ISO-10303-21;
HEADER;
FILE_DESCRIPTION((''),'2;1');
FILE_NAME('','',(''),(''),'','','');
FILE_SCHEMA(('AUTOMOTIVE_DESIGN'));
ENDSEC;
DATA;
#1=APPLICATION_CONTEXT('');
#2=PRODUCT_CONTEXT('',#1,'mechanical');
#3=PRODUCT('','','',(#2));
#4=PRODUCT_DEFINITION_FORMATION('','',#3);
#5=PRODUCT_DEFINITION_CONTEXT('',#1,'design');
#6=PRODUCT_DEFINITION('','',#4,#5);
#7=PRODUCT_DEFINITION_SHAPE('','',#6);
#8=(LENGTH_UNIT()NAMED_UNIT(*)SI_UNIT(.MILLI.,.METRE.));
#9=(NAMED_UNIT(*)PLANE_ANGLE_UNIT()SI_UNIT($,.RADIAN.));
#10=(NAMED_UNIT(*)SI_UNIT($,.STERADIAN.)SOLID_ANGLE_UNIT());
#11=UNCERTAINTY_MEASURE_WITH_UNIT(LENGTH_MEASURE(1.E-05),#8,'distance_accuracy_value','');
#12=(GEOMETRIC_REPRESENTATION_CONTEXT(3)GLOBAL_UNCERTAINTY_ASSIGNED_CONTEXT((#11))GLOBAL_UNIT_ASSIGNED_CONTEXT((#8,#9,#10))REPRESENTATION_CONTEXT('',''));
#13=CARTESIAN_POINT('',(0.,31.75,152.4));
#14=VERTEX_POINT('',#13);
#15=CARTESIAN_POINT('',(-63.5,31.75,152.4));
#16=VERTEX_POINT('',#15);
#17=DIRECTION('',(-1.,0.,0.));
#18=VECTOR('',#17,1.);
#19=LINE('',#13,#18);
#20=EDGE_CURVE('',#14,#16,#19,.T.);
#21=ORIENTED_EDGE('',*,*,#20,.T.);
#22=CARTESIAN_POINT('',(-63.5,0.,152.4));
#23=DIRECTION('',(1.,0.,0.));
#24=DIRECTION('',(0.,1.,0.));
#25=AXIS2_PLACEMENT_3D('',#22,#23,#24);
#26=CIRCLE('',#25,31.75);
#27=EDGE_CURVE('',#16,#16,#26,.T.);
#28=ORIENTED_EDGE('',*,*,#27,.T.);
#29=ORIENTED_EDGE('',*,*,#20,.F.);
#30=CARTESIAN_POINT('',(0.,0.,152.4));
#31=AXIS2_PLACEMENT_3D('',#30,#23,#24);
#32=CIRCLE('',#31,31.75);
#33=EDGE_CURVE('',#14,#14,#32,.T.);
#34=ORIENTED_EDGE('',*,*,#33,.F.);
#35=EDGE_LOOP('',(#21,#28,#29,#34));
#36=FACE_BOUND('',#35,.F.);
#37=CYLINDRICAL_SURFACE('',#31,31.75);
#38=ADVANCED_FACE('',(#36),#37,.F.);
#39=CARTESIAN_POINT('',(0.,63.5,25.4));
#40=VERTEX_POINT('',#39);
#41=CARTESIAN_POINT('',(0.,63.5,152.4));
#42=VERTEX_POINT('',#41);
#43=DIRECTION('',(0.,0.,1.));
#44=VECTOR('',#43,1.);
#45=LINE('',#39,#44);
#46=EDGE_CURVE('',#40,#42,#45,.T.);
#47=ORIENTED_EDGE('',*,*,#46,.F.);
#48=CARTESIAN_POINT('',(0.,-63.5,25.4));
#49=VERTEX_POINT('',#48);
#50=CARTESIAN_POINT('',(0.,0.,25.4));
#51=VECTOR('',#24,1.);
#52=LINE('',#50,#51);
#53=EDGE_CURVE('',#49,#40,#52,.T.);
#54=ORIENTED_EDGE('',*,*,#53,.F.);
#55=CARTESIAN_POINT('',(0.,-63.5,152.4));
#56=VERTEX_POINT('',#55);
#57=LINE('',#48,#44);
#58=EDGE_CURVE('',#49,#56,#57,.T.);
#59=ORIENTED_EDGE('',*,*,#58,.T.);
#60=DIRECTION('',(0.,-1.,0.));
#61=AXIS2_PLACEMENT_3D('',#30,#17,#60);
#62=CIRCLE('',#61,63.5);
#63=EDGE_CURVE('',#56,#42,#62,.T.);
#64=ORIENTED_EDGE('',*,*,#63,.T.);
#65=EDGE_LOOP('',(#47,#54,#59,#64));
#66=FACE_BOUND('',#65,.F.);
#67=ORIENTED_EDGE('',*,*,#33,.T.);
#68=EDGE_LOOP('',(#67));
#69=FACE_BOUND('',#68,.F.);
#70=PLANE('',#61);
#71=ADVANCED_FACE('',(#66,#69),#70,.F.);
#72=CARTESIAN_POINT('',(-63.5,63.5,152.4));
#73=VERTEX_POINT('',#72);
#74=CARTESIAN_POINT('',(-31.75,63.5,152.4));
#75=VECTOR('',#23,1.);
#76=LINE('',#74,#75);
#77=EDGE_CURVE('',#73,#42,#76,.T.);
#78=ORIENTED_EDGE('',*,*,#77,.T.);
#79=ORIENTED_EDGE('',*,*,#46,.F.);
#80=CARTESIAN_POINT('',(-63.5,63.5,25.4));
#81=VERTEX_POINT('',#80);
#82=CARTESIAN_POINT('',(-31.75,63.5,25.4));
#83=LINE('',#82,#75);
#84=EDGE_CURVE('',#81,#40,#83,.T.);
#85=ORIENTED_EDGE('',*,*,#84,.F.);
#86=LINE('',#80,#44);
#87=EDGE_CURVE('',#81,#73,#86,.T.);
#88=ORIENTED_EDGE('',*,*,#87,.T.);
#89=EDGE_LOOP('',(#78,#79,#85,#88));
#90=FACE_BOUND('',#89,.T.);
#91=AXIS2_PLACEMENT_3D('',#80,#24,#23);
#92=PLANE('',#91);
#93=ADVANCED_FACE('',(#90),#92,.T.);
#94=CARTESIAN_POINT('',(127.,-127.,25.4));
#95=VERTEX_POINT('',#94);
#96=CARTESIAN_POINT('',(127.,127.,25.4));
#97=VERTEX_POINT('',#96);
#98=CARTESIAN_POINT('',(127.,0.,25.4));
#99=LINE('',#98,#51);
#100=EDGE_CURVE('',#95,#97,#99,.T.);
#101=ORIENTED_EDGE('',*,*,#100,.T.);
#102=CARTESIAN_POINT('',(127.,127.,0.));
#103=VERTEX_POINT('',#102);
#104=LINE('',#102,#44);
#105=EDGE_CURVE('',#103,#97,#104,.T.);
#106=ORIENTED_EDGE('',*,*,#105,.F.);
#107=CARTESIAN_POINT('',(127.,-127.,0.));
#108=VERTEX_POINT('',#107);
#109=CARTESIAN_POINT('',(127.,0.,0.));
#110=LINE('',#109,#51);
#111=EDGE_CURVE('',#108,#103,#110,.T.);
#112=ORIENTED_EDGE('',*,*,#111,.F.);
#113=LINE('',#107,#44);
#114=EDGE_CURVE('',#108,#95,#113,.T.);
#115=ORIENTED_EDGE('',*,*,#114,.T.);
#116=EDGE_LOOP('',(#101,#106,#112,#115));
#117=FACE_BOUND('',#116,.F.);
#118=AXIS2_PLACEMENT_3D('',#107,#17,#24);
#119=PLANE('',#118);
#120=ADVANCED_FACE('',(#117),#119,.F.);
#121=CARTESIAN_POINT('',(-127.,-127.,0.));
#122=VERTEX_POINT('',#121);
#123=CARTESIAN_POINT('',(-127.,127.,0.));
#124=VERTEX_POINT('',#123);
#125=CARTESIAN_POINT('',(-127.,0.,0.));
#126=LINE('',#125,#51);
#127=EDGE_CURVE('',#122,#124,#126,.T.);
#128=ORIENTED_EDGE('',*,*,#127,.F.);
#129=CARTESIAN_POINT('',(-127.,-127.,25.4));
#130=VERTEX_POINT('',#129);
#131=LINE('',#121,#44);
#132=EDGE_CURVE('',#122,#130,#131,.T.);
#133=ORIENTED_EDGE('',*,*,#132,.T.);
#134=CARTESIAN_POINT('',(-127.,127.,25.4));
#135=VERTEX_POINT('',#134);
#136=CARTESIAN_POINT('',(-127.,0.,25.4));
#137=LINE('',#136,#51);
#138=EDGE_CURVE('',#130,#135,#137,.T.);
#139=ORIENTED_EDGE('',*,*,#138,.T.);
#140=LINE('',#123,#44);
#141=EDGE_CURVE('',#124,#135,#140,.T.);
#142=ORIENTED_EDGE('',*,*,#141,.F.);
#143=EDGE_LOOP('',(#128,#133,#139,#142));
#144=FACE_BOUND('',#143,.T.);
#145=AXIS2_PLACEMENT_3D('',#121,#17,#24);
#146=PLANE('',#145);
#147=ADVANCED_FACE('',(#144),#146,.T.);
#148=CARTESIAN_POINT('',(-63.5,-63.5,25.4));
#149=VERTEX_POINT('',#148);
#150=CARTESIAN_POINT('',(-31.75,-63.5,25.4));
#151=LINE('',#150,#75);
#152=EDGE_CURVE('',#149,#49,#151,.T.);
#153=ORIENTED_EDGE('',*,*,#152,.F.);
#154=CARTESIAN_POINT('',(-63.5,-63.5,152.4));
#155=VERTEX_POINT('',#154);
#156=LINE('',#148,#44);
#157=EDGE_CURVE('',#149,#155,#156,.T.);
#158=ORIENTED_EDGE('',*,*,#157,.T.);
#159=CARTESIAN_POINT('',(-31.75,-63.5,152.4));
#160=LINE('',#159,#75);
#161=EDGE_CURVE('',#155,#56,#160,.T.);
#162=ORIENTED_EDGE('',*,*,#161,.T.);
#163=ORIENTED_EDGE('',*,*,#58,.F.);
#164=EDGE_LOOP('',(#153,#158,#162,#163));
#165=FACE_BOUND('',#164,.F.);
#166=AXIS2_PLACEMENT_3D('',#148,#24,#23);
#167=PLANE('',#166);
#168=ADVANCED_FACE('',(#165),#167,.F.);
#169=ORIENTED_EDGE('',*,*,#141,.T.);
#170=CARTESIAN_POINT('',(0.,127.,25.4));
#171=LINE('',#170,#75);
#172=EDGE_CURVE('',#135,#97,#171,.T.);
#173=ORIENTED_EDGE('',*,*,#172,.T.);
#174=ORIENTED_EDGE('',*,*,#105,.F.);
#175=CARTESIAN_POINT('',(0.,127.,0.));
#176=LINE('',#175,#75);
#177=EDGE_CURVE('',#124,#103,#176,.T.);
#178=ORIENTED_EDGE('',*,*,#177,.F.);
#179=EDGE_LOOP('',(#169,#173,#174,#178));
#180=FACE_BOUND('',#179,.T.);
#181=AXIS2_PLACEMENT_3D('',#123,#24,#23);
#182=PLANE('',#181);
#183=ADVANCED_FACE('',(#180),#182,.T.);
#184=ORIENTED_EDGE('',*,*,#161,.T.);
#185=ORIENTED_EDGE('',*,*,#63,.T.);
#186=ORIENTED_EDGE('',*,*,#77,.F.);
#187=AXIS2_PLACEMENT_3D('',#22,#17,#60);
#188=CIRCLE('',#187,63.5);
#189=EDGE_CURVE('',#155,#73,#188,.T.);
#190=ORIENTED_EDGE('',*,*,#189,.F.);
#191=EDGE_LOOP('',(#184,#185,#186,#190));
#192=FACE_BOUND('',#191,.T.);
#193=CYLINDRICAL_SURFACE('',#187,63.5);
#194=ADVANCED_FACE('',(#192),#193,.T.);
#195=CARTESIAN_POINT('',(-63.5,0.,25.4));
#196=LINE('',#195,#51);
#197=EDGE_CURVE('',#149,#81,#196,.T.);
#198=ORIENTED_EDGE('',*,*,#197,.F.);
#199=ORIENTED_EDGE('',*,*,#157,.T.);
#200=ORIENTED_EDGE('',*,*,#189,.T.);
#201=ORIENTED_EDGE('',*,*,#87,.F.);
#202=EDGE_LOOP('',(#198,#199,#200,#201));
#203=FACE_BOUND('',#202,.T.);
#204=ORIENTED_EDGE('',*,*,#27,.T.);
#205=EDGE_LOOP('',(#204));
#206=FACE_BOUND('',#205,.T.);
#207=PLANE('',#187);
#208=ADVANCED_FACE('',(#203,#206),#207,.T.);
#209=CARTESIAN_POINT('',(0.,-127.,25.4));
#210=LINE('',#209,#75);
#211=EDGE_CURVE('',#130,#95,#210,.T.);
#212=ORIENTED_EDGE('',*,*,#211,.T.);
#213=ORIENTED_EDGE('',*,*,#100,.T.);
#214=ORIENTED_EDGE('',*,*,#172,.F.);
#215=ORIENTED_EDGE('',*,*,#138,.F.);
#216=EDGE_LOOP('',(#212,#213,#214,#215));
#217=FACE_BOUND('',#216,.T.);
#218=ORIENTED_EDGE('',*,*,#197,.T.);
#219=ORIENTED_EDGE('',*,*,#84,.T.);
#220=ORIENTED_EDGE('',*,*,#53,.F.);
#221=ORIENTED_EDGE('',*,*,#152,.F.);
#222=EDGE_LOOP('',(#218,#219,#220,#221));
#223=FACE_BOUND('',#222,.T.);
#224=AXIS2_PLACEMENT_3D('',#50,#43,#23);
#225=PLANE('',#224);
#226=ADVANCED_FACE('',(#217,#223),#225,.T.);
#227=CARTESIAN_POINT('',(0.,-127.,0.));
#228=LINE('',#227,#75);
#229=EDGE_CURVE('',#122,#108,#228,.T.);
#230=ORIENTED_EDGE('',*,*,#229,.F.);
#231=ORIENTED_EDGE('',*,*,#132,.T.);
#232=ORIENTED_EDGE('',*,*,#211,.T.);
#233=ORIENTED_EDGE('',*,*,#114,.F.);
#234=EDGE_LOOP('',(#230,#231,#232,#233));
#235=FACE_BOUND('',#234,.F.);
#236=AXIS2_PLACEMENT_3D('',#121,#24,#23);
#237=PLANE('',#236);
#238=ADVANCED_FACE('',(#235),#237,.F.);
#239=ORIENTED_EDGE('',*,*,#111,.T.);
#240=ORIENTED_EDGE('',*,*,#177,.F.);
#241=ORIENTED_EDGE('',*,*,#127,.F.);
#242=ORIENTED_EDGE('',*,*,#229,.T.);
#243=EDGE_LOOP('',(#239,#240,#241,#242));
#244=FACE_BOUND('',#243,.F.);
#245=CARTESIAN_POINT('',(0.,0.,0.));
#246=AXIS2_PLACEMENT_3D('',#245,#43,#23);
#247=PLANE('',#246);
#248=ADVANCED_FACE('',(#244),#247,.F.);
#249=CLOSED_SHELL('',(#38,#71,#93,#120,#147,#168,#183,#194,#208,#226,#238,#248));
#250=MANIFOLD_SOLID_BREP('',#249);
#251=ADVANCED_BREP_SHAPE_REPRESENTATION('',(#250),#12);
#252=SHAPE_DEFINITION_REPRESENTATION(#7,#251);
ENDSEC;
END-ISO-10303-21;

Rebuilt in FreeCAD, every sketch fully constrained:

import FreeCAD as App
import Part
import Sketcher
from FreeCAD import Vector
Q = App.Units.Quantity

doc = App.newDocument("Part")
body = doc.addObject("PartDesign::Body", "Body")

# Sketch on XY plane
sketch1 = doc.addObject("Sketcher::SketchObject", "Sketch")
body.addObject(sketch1)
sketch1.AttachmentSupport = (doc.XY_Plane, [""])
sketch1.MapMode = "FlatFace"
sketch1.addGeometry(Part.LineSegment(Vector(-127, 127, 0), Vector(-127, -127, 0)), False)
sketch1.addGeometry(Part.LineSegment(Vector(-127, -127, 0), Vector(127, -127, 0)), False)
sketch1.addGeometry(Part.LineSegment(Vector(127, -127, 0), Vector(127, 127, 0)), False)
sketch1.addGeometry(Part.LineSegment(Vector(127, 127, 0), Vector(-127, 127, 0)), False)
sketch1.addConstraint(Sketcher.Constraint("Coincident", 0, 2, 1, 1))
sketch1.addConstraint(Sketcher.Constraint("Coincident", 1, 2, 2, 1))
sketch1.addConstraint(Sketcher.Constraint("Coincident", 2, 2, 3, 1))
sketch1.addConstraint(Sketcher.Constraint("Coincident", 3, 2, 0, 1))
sketch1.addConstraint(Sketcher.Constraint("Vertical", 0))
sketch1.addConstraint(Sketcher.Constraint("Horizontal", 1))
sketch1.addConstraint(Sketcher.Constraint("Vertical", 2))
sketch1.addConstraint(Sketcher.Constraint("Horizontal", 3))
sketch1.addConstraint(Sketcher.Constraint("Symmetric", 0, 2, 2, 2, -1, 1))
sketch1.addConstraint(Sketcher.Constraint("Equal", 3, 0))
sketch1.addConstraint(Sketcher.Constraint("DistanceX", 1, 1, 1, 2, Q("10 in")))
pad1 = doc.addObject("PartDesign::Pad", "Pad")
body.addObject(pad1)
pad1.Profile = sketch1
pad1.Length = Q("1 in")

# Sketch on XY plane
sketch2 = doc.addObject("Sketcher::SketchObject", "Sketch001")
body.addObject(sketch2)
sketch2.AttachmentSupport = (doc.XY_Plane, [""])
sketch2.MapMode = "FlatFace"
sketch2.AttachmentOffset = App.Placement(Vector(0, 0, 1 * 25.4), App.Rotation())
sketch2.addGeometry(Part.LineSegment(Vector(-64, 64, 0), Vector(-64, -64, 0)), False)
sketch2.addGeometry(Part.LineSegment(Vector(-64, -64, 0), Vector(0, -64, 0)), False)
sketch2.addGeometry(Part.LineSegment(Vector(0, -64, 0), Vector(0, 64, 0)), False)
sketch2.addGeometry(Part.LineSegment(Vector(0, 64, 0), Vector(-64, 64, 0)), False)
sketch2.addConstraint(Sketcher.Constraint("Coincident", 0, 2, 1, 1))
sketch2.addConstraint(Sketcher.Constraint("Coincident", 1, 2, 2, 1))
sketch2.addConstraint(Sketcher.Constraint("Coincident", 2, 2, 3, 1))
sketch2.addConstraint(Sketcher.Constraint("Coincident", 3, 2, 0, 1))
sketch2.addConstraint(Sketcher.Constraint("Vertical", 0))
sketch2.addConstraint(Sketcher.Constraint("Horizontal", 1))
sketch2.addConstraint(Sketcher.Constraint("Vertical", 2))
sketch2.addConstraint(Sketcher.Constraint("Horizontal", 3))
sketch2.addConstraint(Sketcher.Constraint("Symmetric", 1, 2, 2, 2, -1, 1))
sketch2.addConstraint(Sketcher.Constraint("DistanceY", 0, 2, 0, 1, Q("5 in")))
sketch2.addConstraint(Sketcher.Constraint("DistanceX", 1, 1, 1, 2, Q("2.5 in")))
pad2 = doc.addObject("PartDesign::Pad", "Pad001")
body.addObject(pad2)
pad2.Profile = sketch2
pad2.Length = Q("5 in")

# Sketch on YZ plane
sketch3 = doc.addObject("Sketcher::SketchObject", "Sketch002")
body.addObject(sketch3)
sketch3.AttachmentSupport = (doc.YZ_Plane, [""])
sketch3.MapMode = "FlatFace"
sketch3.AttachmentOffset = App.Placement(Vector(0, 0, -2.5 * 25.4), App.Rotation())
sketch3.addGeometry(Part.Circle(Vector(0, 152, 0), Vector(0, 0, 1), 64), False)
sketch3.addConstraint(Sketcher.Constraint("PointOnObject", 0, 3, -2))
sketch3.addConstraint(Sketcher.Constraint("Diameter", 0, Q("5 in")))
sketch3.addConstraint(Sketcher.Constraint("DistanceY", -1, 1, 0, 3, Q("6 in")))
pad3 = doc.addObject("PartDesign::Pad", "Pad002")
body.addObject(pad3)
pad3.Profile = sketch3
pad3.Length = Q("2.5 in")

# Sketch on YZ plane
sketch4 = doc.addObject("Sketcher::SketchObject", "Sketch003")
body.addObject(sketch4)
sketch4.AttachmentSupport = (doc.YZ_Plane, [""])
sketch4.MapMode = "FlatFace"
sketch4.addGeometry(Part.Circle(Vector(0, 152, 0), Vector(0, 0, 1), 32), False)
sketch4.addConstraint(Sketcher.Constraint("PointOnObject", 0, 3, -2))
sketch4.addConstraint(Sketcher.Constraint("Diameter", 0, Q("2.5 in")))
sketch4.addConstraint(Sketcher.Constraint("DistanceY", -1, 1, 0, 3, Q("6 in")))
pocket1 = doc.addObject("PartDesign::Pocket", "Pocket")
body.addObject(pocket1)
pocket1.Profile = sketch4
pocket1.Type = "ThroughAll"

doc.recompute()
